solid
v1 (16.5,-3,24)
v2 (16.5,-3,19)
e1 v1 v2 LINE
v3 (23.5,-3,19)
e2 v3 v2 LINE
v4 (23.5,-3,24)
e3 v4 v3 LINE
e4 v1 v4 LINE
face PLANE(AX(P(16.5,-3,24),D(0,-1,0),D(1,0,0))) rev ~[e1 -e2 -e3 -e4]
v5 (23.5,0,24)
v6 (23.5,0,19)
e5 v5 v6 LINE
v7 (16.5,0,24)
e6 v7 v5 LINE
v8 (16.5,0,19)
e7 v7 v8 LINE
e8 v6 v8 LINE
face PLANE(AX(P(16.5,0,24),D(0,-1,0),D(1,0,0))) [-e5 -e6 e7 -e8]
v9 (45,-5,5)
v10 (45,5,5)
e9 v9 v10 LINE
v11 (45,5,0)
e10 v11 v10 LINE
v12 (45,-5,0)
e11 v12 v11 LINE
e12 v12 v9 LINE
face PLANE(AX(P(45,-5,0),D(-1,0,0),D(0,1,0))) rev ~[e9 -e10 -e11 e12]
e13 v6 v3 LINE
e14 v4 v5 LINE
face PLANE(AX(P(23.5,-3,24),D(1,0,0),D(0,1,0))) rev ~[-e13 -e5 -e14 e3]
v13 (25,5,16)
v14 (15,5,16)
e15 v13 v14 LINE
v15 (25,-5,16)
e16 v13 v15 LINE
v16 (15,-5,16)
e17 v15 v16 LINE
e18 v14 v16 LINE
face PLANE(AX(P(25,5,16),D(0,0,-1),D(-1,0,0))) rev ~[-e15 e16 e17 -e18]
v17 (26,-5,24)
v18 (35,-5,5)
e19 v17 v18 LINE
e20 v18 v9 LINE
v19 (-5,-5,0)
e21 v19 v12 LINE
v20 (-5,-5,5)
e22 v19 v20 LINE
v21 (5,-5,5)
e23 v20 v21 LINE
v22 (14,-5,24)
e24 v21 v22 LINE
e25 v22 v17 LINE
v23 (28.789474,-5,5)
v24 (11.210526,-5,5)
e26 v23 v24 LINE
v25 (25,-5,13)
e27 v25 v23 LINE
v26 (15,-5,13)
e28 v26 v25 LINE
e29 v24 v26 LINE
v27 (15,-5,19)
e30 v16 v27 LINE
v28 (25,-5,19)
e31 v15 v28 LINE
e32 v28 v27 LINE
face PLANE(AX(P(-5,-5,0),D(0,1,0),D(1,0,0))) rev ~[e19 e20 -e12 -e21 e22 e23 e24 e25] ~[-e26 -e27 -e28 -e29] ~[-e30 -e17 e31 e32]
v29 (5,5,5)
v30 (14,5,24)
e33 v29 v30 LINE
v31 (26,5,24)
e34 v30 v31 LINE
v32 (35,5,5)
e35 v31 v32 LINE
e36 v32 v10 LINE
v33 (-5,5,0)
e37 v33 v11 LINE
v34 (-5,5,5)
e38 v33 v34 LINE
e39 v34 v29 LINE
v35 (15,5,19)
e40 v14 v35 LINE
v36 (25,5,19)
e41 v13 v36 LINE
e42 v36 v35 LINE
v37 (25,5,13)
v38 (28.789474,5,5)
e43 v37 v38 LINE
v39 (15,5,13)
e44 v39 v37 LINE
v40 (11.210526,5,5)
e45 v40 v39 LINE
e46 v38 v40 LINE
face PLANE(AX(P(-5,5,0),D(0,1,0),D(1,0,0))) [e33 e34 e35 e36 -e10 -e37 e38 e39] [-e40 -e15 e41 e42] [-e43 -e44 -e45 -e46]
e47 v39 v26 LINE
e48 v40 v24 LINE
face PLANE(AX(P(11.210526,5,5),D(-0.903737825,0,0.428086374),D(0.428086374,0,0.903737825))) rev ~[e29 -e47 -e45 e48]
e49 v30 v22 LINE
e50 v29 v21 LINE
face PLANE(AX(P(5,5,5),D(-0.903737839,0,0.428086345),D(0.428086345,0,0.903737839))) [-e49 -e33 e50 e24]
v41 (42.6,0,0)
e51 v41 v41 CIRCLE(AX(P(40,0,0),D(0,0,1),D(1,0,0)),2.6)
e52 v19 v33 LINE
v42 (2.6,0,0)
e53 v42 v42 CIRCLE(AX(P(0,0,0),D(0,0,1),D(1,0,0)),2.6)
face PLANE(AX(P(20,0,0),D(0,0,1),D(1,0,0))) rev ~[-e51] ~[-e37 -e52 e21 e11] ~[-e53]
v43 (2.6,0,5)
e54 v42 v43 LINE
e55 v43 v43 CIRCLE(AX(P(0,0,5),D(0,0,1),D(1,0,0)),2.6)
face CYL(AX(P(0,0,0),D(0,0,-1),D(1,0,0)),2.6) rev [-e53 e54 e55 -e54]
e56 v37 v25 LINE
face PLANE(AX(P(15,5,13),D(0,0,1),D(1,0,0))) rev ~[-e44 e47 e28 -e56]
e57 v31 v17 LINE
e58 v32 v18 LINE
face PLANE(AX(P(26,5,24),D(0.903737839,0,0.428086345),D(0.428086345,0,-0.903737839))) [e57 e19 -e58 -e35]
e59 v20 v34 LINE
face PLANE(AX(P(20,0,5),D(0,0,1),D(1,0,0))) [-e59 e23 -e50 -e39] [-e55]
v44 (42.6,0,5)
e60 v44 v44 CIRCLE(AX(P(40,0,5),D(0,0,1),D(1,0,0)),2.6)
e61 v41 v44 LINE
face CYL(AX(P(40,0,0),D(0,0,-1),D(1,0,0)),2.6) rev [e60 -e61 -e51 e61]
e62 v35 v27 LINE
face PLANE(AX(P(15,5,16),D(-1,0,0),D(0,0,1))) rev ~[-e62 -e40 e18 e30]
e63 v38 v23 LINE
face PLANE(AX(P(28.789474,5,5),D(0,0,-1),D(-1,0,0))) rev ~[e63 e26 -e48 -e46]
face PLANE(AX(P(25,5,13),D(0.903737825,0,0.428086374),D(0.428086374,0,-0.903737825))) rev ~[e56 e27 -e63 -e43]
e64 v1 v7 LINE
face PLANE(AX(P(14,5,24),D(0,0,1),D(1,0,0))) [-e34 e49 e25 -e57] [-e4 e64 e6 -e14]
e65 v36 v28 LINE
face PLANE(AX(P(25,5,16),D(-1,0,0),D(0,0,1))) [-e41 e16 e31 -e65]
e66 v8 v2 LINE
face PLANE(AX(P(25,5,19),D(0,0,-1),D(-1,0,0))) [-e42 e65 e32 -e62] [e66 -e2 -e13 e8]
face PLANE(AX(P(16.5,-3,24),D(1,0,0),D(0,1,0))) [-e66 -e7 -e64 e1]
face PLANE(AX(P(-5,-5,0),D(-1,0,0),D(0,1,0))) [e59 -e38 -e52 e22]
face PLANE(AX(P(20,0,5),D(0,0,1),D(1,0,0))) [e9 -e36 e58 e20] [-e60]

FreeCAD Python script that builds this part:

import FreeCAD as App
import Part
import Sketcher
from FreeCAD import Vector
Q = App.Units.Quantity


def add_polygon(sketch, points):
    """Adds a closed chain of lines whose ends are joined by coincident constraints."""
    first, n = sketch.GeometryCount, len(points)
    for a, b in zip(points, points[1:] + points[:1]):
        sketch.addGeometry(Part.LineSegment(App.Vector(*a, 0), App.Vector(*b, 0)), False)
    for i in range(n):
        sketch.addConstraint(Sketcher.Constraint("Coincident", first + i, 2, first + (i + 1) % n, 1))

doc = App.newDocument("Part")
body = doc.addObject("PartDesign::Body", "Body")

sketch1 = body.newObject("Sketcher::SketchObject", "Sketch")
sketch1.AttachmentSupport = (doc.getObject("XY_Plane"), [""])
sketch1.MapMode = "FlatFace"
add_polygon(sketch1, [(-5, 5), (-5, -5), (45, -5), (45, 5)])
sketch1.addGeometry(Part.Circle(Vector(0, 0, 0), Vector(0, 0, 1), 2.6), False)
sketch1.addGeometry(Part.Circle(Vector(40, 0, 0), Vector(0, 0, 1), 2.6), False)
sketch1.addConstraint(Sketcher.Constraint("Vertical", 0))
sketch1.addConstraint(Sketcher.Constraint("Horizontal", 1))
sketch1.addConstraint(Sketcher.Constraint("Vertical", 2))
sketch1.addConstraint(Sketcher.Constraint("Horizontal", 3))
sketch1.addConstraint(Sketcher.Constraint("Coincident", 4, 3, -1, 1))
sketch1.addConstraint(Sketcher.Constraint("Equal", 4, 5))
sketch1.addConstraint(Sketcher.Constraint("PointOnObject", 5, 3, -1))
sketch1.addConstraint(Sketcher.Constraint("Diameter", 4, Q("5.2 mm")))
sketch1.addConstraint(Sketcher.Constraint("DistanceX", 1, 1, 1, 2, Q("50 mm")))
sketch1.addConstraint(Sketcher.Constraint("DistanceY", 0, 2, 0, 1, Q("10 mm")))
sketch1.addConstraint(Sketcher.Constraint("DistanceX", -1, 1, 5, 3, Q("40 mm")))
sketch1.addConstraint(Sketcher.Constraint("DistanceX", 0, 2, -1, 1, Q("5 mm")))
sketch1.addConstraint(Sketcher.Constraint("DistanceY", 0, 2, -1, 1, Q("5 mm")))
pad1 = body.newObject("PartDesign::Pad", "Pad")
pad1.Profile = sketch1
pad1.Length = 5

sketch2 = body.newObject("Sketcher::SketchObject", "Sketch001")
sketch2.AttachmentSupport = (doc.getObject("XZ_Plane"), [""])
sketch2.MapMode = "FlatFace"
sketch2.AttachmentOffset = App.Placement(Vector(0, 0, -5), App.Rotation())
add_polygon(sketch2, [(35, 5), (5, 5), (14, 24), (26, 24)])
add_polygon(sketch2, [(15, 16), (25, 16), (25, 19), (15, 19)])
sketch2.addConstraint(Sketcher.Constraint("Horizontal", 0))
sketch2.addConstraint(Sketcher.Constraint("Horizontal", 2))
sketch2.addConstraint(Sketcher.Constraint("Horizontal", 4))
sketch2.addConstraint(Sketcher.Constraint("Vertical", 5))
sketch2.addConstraint(Sketcher.Constraint("Horizontal", 6))
sketch2.addConstraint(Sketcher.Constraint("Vertical", 7))
sketch2.addConstraint(Sketcher.Constraint("Equal", 1, 3))
sketch2.addConstraint(Sketcher.Constraint("DistanceX", 0, 2, 0, 1, Q("30 mm")))
sketch2.addConstraint(Sketcher.Constraint("DistanceX", 2, 1, 2, 2, Q("12 mm")))
sketch2.addConstraint(Sketcher.Constraint("DistanceX", 4, 1, 4, 2, Q("10 mm")))
sketch2.addConstraint(Sketcher.Constraint("DistanceY", 5, 1, 5, 2, Q("3 mm")))
sketch2.addConstraint(Sketcher.Constraint("DistanceX", -1, 1, 0, 2, Q("5 mm")))
sketch2.addConstraint(Sketcher.Constraint("DistanceY", -1, 1, 0, 2, Q("5 mm")))
sketch2.addConstraint(Sketcher.Constraint("DistanceY", -1, 1, 1, 2, Q("24 mm")))
sketch2.addConstraint(Sketcher.Constraint("DistanceX", -1, 1, 4, 2, Q("25 mm")))
sketch2.addConstraint(Sketcher.Constraint("DistanceY", -1, 1, 4, 2, Q("16 mm")))
pad2 = body.newObject("PartDesign::Pad", "Pad001")
pad2.Profile = sketch2
pad2.Length = 10

sketch3 = body.newObject("Sketcher::SketchObject", "Sketch002")
sketch3.AttachmentSupport = (doc.getObject("XY_Plane"), [""])
sketch3.MapMode = "FlatFace"
sketch3.AttachmentOffset = App.Placement(Vector(0, 0, 24), App.Rotation())
add_polygon(sketch3, [(16.5, 0), (16.5, -3), (23.5, -3), (23.5, 0)])
sketch3.addConstraint(Sketcher.Constraint("Vertical", 0))
sketch3.addConstraint(Sketcher.Constraint("Horizontal", 1))
sketch3.addConstraint(Sketcher.Constraint("Vertical", 2))
sketch3.addConstraint(Sketcher.Constraint("Horizontal", 3))
sketch3.addConstraint(Sketcher.Constraint("PointOnObject", 2, 2, -1))
sketch3.addConstraint(Sketcher.Constraint("DistanceX", 1, 1, 1, 2, Q("7 mm")))
sketch3.addConstraint(Sketcher.Constraint("DistanceY", 0, 2, 0, 1, Q("3 mm")))
sketch3.addConstraint(Sketcher.Constraint("DistanceX", -1, 1, 0, 2, Q("16.5 mm")))
pocket1 = body.newObject("PartDesign::Pocket", "Pocket")
pocket1.Profile = sketch3
pocket1.Length = 8

sketch4 = body.newObject("Sketcher::SketchObject", "Sketch003")
sketch4.AttachmentSupport = (doc.getObject("XZ_Plane"), [""])
sketch4.MapMode = "FlatFace"
sketch4.AttachmentOffset = App.Placement(Vector(0, 0, -5), App.Rotation())
add_polygon(sketch4, [(15, 13), (25, 13), (28.789474, 5), (11.210526, 5)])
sketch4.addConstraint(Sketcher.Constraint("Horizontal", 0))
sketch4.addConstraint(Sketcher.Constraint("Horizontal", 2))
sketch4.addConstraint(Sketcher.Constraint("Equal", 1, 3))
sketch4.addConstraint(Sketcher.Constraint("DistanceX", 0, 1, 0, 2, Q("10 mm")))
sketch4.addConstraint(Sketcher.Constraint("DistanceX", -1, 1, 0, 2, Q("25 mm")))
sketch4.addConstraint(Sketcher.Constraint("DistanceY", -1, 1, 0, 2, Q("13 mm")))
sketch4.addConstraint(Sketcher.Constraint("DistanceY", -1, 1, 1, 2, Q("5 mm")))
sketch4.addConstraint(Sketcher.Constraint("DistanceX", 2, 2, 2, 1, Q("17.578948 mm")))
pocket2 = body.newObject("PartDesign::Pocket", "Pocket001")
pocket2.Profile = sketch4
pocket2.Type = "ThroughAll"
pocket2.Reversed = True

doc.recompute()
